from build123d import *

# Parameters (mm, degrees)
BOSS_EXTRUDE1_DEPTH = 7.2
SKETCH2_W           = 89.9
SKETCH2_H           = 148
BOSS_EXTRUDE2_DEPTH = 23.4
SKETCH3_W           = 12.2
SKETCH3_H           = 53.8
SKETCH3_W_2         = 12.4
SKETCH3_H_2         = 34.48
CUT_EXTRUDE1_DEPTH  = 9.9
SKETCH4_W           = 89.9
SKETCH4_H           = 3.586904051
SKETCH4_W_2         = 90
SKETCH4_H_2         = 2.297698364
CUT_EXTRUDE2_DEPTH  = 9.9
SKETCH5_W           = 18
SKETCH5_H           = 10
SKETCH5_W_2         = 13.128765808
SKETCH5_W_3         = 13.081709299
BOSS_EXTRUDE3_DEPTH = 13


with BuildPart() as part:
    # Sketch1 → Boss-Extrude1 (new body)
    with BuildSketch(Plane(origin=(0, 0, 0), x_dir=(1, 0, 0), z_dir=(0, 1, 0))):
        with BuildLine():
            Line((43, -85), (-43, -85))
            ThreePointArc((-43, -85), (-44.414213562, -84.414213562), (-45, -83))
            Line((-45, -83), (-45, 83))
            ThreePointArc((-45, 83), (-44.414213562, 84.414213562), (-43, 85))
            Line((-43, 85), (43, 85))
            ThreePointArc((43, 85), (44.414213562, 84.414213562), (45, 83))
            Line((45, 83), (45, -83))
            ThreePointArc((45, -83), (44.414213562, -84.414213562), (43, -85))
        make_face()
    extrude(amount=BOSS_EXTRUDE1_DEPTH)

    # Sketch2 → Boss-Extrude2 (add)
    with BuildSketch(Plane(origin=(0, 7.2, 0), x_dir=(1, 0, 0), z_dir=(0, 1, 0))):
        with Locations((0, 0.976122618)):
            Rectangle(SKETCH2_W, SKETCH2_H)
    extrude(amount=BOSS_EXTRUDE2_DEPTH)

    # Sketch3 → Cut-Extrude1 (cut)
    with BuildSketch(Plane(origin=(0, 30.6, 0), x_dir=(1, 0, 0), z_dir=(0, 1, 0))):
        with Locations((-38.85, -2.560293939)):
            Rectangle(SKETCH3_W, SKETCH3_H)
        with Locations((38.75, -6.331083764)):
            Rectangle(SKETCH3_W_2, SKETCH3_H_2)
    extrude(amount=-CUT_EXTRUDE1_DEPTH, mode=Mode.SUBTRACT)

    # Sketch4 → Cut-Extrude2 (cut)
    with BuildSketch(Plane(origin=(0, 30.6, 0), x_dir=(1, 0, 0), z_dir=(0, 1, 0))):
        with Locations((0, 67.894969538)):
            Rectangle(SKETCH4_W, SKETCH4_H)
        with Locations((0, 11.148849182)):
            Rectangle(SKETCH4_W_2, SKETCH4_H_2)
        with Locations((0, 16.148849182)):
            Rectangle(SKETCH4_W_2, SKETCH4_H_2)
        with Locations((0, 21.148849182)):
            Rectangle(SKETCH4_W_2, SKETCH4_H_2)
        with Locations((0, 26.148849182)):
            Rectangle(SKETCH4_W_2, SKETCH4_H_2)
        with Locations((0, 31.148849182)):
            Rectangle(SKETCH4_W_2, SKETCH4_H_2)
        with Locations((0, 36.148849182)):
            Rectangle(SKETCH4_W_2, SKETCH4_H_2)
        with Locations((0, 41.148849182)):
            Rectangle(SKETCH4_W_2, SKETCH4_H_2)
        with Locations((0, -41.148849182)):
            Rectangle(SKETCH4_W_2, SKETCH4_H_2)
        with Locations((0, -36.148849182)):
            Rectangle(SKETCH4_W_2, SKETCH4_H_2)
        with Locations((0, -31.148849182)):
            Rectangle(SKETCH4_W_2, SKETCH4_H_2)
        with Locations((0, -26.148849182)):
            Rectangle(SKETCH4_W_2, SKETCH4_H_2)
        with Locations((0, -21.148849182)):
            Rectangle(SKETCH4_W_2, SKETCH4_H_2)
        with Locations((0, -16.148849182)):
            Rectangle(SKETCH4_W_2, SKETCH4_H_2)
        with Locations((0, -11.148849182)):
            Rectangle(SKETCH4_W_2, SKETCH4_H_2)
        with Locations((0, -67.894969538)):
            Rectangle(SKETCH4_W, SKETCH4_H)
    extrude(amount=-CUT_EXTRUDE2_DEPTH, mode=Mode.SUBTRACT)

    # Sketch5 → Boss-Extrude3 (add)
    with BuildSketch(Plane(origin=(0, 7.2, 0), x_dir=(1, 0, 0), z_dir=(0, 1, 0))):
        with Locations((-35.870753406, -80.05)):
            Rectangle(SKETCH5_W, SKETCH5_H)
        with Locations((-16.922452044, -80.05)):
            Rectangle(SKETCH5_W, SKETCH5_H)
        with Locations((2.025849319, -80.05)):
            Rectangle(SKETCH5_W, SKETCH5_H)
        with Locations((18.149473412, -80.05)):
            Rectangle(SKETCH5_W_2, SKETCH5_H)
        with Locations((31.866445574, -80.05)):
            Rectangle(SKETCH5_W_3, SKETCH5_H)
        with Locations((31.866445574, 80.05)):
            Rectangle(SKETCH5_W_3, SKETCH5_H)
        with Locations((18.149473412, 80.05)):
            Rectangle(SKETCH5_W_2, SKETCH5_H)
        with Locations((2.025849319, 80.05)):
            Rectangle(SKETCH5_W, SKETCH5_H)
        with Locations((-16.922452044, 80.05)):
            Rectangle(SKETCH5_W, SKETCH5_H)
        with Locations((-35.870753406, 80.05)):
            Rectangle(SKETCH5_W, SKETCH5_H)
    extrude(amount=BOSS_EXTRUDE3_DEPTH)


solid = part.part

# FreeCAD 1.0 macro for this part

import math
import FreeCAD as App
import Part
import Sketcher
from FreeCAD import Vector


def add_polygon(sketch, points):
    """Adds a closed chain of lines whose ends are joined by coincident constraints."""
    first, n = sketch.GeometryCount, len(points)
    for a, b in zip(points, points[1:] + points[:1]):
        sketch.addGeometry(Part.LineSegment(App.Vector(*a, 0), App.Vector(*b, 0)), False)
    for i in range(n):
        sketch.addConstraint(Sketcher.Constraint("Coincident", first + i, 2, first + (i + 1) % n, 1))

doc = App.newDocument("Part")
params = doc.addObject("Spreadsheet::Sheet", "Params")
for row, (alias, value) in enumerate([
    ("sketch1_radius", "2 mm"),
    ("sketch1_width", "86 mm"),
    ("sketch1_height", "166 mm"),
    ("pad1_length", "7.2 mm"),
    ("sketch2_height", "148 mm"),
    ("sketch2_width", "89.9 mm"),
    ("pad2_length", "23.4 mm"),
    ("sketch3_width", "12.2 mm"),
    ("sketch3_width2", "12.4 mm"),
    ("sketch3_height", "53.8 mm"),
    ("sketch3_height2", "34.48 mm"),
    ("pocket1_length", "9.9 mm"),
    ("sketch4_width", "90 mm"),
    ("sketch4_width2", "89.9 mm"),
    ("pocket2_length", "9.9 mm"),
    ("sketch5_width", "18 mm"),
    ("sketch5_height", "10 mm"),
    ("pad3_length", "13 mm"),
], start=1):
    params.set(f"A{row}", alias)
    params.set(f"B{row}", "=" + value)
    params.setAlias(f"B{row}", alias)

body = doc.addObject("PartDesign::Body", "Body")

# Sketch on XZ plane
sketch1 = doc.addObject("Sketcher::SketchObject", "Sketch")
body.addObject(sketch1)
sketch1.AttachmentSupport = (doc.XZ_Plane, [""])
sketch1.MapMode = "FlatFace"
sketch1.addGeometry(Part.LineSegment(Vector(-43, 85, 0), Vector(43, 85, 0)), False)
sketch1.addGeometry(Part.ArcOfCircle(Part.Circle(Vector(43, 83, 0), Vector(0, 0, 1), 2), math.radians(0), math.radians(90)), False)
sketch1.addGeometry(Part.LineSegment(Vector(45, 83, 0), Vector(45, -83, 0)), False)
sketch1.addGeometry(Part.ArcOfCircle(Part.Circle(Vector(43, -83, 0), Vector(0, 0, 1), 2), math.radians(-90), math.radians(0)), False)
sketch1.addGeometry(Part.LineSegment(Vector(43, -85, 0), Vector(-43, -85, 0)), False)
sketch1.addGeometry(Part.ArcOfCircle(Part.Circle(Vector(-43, -83, 0), Vector(0, 0, 1), 2), math.radians(-180), math.radians(-90)), False)
sketch1.addGeometry(Part.LineSegment(Vector(-45, -83, 0), Vector(-45, 83, 0)), False)
sketch1.addGeometry(Part.ArcOfCircle(Part.Circle(Vector(-43, 83, 0), Vector(0, 0, 1), 2), math.radians(90), math.radians(180)), False)
sketch1.addConstraint(Sketcher.Constraint("Tangent", 0, 2, 1, 2))
sketch1.addConstraint(Sketcher.Constraint("Tangent", 1, 1, 2, 1))
sketch1.addConstraint(Sketcher.Constraint("Tangent", 2, 2, 3, 2))
sketch1.addConstraint(Sketcher.Constraint("Tangent", 3, 1, 4, 1))
sketch1.addConstraint(Sketcher.Constraint("Tangent", 4, 2, 5, 2))
sketch1.addConstraint(Sketcher.Constraint("Tangent", 5, 1, 6, 1))
sketch1.addConstraint(Sketcher.Constraint("Tangent", 6, 2, 7, 2))
sketch1.addConstraint(Sketcher.Constraint("Tangent", 7, 1, 0, 1))
sketch1.addConstraint(Sketcher.Constraint("Horizontal", 0))
sketch1.addConstraint(Sketcher.Constraint("Vertical", 2))
sketch1.addConstraint(Sketcher.Constraint("Horizontal", 4))
sketch1.addConstraint(Sketcher.Constraint("Vertical", 6))
sketch1.addConstraint(Sketcher.Constraint("Equal", 1, 3))
sketch1.addConstraint(Sketcher.Constraint("Equal", 3, 5))
sketch1.addConstraint(Sketcher.Constraint("Equal", 5, 7))
sketch1.addConstraint(Sketcher.Constraint("Symmetric", 1, 3, 5, 3, -1, 1))
sketch1.addConstraint(Sketcher.Constraint("Radius", 1, 2.0))
sketch1.addConstraint(Sketcher.Constraint("DistanceX", 0, 1, 0, 2, 86.0))
sketch1.addConstraint(Sketcher.Constraint("DistanceY", 2, 2, 2, 1, 166.0))
sketch1.setExpression("Constraints[16]", "Params.sketch1_radius")
sketch1.setExpression("Constraints[17]", "Params.sketch1_width")
sketch1.setExpression("Constraints[18]", "Params.sketch1_height")
pad1 = doc.addObject("PartDesign::Pad", "Pad")
body.addObject(pad1)
pad1.Profile = sketch1
pad1.setExpression("Length", "Params.pad1_length")
pad1.Reversed = True

# Sketch on XZ plane
sketch2 = doc.addObject("Sketcher::SketchObject", "Sketch001")
body.addObject(sketch2)
sketch2.AttachmentSupport = (doc.XZ_Plane, [""])
sketch2.MapMode = "FlatFace"
sketch2.AttachmentOffset = App.Placement(Vector(0, 0, -7.2), App.Rotation())
add_polygon(sketch2, [(-44.95, -74.976123), (-44.95, 73.023877), (44.95, 73.023877), (44.95, -74.976123)])  # lines 0-3
sketch2.addConstraint(Sketcher.Constraint("Vertical", 0))
sketch2.addConstraint(Sketcher.Constraint("Horizontal", 1))
sketch2.addConstraint(Sketcher.Constraint("Vertical", 2))
sketch2.addConstraint(Sketcher.Constraint("Horizontal", 3))
sketch2.addConstraint(Sketcher.Constraint("DistanceY", 0, 1, 0, 2, 148.0))
sketch2.addConstraint(Sketcher.Constraint("DistanceX", 1, 1, 1, 2, 89.9))
sketch2.addConstraint(Sketcher.Constraint("DistanceX", 0, 2, -1, 1, 44.95))
sketch2.addConstraint(Sketcher.Constraint("DistanceY", -1, 1, 0, 2, 73.023877))
sketch2.setExpression("Constraints[8]", "Params.sketch2_height")
sketch2.setExpression("Constraints[9]", "Params.sketch2_width")
pad2 = doc.addObject("PartDesign::Pad", "Pad001")
body.addObject(pad2)
pad2.Profile = sketch2
pad2.setExpression("Length", "Params.pad2_length")
pad2.Reversed = True

# Sketch on XZ plane
sketch3 = doc.addObject("Sketcher::SketchObject", "Sketch002")
body.addObject(sketch3)
sketch3.AttachmentSupport = (doc.XZ_Plane, [""])
sketch3.MapMode = "FlatFace"
sketch3.AttachmentOffset = App.Placement(Vector(0, 0, -30.6), App.Rotation())
add_polygon(sketch3, [(-44.95, -24.339706), (-44.95, 29.460294), (-32.75, 29.460294), (-32.75, -24.339706)])  # lines 0-3
add_polygon(sketch3, [(32.55, -10.908916), (32.55, 23.571084), (44.95, 23.571084), (44.95, -10.908916)])  # lines 4-7
sketch3.addConstraint(Sketcher.Constraint("Vertical", 0))
sketch3.addConstraint(Sketcher.Constraint("Horizontal", 1))
sketch3.addConstraint(Sketcher.Constraint("Vertical", 2))
sketch3.addConstraint(Sketcher.Constraint("Horizontal", 3))
sketch3.addConstraint(Sketcher.Constraint("Vertical", 4))
sketch3.addConstraint(Sketcher.Constraint("Horizontal", 5))
sketch3.addConstraint(Sketcher.Constraint("Vertical", 6))
sketch3.addConstraint(Sketcher.Constraint("Horizontal", 7))
sketch3.addConstraint(Sketcher.Constraint("DistanceX", 1, 1, 1, 2, 12.2))
sketch3.addConstraint(Sketcher.Constraint("DistanceX", 5, 1, 5, 2, 12.4))
sketch3.addConstraint(Sketcher.Constraint("DistanceY", 0, 1, 0, 2, 53.8))
sketch3.addConstraint(Sketcher.Constraint("DistanceY", 4, 1, 4, 2, 34.48))
sketch3.addConstraint(Sketcher.Constraint("DistanceX", 1, 2, 4, 2, 65.3))
sketch3.addConstraint(Sketcher.Constraint("DistanceX", 0, 2, -1, 1, 44.95))
sketch3.addConstraint(Sketcher.Constraint("DistanceY", 4, 2, 1, 2, 5.88921))
sketch3.addConstraint(Sketcher.Constraint("DistanceY", -1, 1, 0, 2, 29.460294))
sketch3.setExpression("Constraints[16]", "Params.sketch3_width")
sketch3.setExpression("Constraints[17]", "Params.sketch3_width2")
sketch3.setExpression("Constraints[18]", "Params.sketch3_height")
sketch3.setExpression("Constraints[19]", "Params.sketch3_height2")
pocket1 = doc.addObject("PartDesign::Pocket", "Pocket")
body.addObject(pocket1)
pocket1.Profile = sketch3
pocket1.setExpression("Length", "Params.pocket1_length")
pocket1.Reversed = True

# Sketch on XZ plane
sketch4 = doc.addObject("Sketcher::SketchObject", "Sketch003")
body.addObject(sketch4)
sketch4.AttachmentSupport = (doc.XZ_Plane, [""])
sketch4.MapMode = "FlatFace"
sketch4.AttachmentOffset = App.Placement(Vector(0, 0, -30.6), App.Rotation())
add_polygon(sketch4, [(-44.95, -69.688422), (-44.95, -66.101518), (44.95, -66.101518), (44.95, -69.688422)])  # lines 0-3
add_polygon(sketch4, [(-45, -12.297698), (-45, -10), (45, -10), (45, -12.297698)])  # lines 4-7
add_polygon(sketch4, [(-45, -17.297698), (-45, -15), (45, -15), (45, -17.297698)])  # lines 8-11
add_polygon(sketch4, [(-45, -22.297698), (-45, -20), (45, -20), (45, -22.297698)])  # lines 12-15
add_polygon(sketch4, [(-45, -27.297698), (-45, -25), (45, -25), (45, -27.297698)])  # lines 16-19
add_polygon(sketch4, [(-45, -32.297698), (-45, -30), (45, -30), (45, -32.297698)])  # lines 20-23
add_polygon(sketch4, [(-45, -37.297698), (-45, -35), (45, -35), (45, -37.297698)])  # lines 24-27
add_polygon(sketch4, [(-45, -42.297698), (-45, -40), (45, -40), (45, -42.297698)])  # lines 28-31
add_polygon(sketch4, [(-45, 40), (-45, 42.297698), (45, 42.297698), (45, 40)])  # lines 32-35
add_polygon(sketch4, [(-45, 35), (-45, 37.297698), (45, 37.297698), (45, 35)])  # lines 36-39
add_polygon(sketch4, [(-45, 30), (-45, 32.297698), (45, 32.297698), (45, 30)])  # lines 40-43
add_polygon(sketch4, [(-45, 25), (-45, 27.297698), (45, 27.297698), (45, 25)])  # lines 44-47
add_polygon(sketch4, [(-45, 20), (-45, 22.297698), (45, 22.297698), (45, 20)])  # lines 48-51
add_polygon(sketch4, [(-45, 15), (-45, 17.297698), (45, 17.297698), (45, 15)])  # lines 52-55
add_polygon(sketch4, [(-45, 10), (-45, 12.297698), (45, 12.297698), (45, 10)])  # lines 56-59
add_polygon(sketch4, [(-44.95, 66.101518), (-44.95, 69.688422), (44.95, 69.688422), (44.95, 66.101518)])  # lines 60-63
sketch4.addConstraint(Sketcher.Constraint("Vertical", 0))
sketch4.addConstraint(Sketcher.Constraint("Horizontal", 1))
sketch4.addConstraint(Sketcher.Constraint("Vertical", 2))
sketch4.addConstraint(Sketcher.Constraint("Horizontal", 3))
sketch4.addConstraint(Sketcher.Constraint("Vertical", 4))
sketch4.addConstraint(Sketcher.Constraint("Horizontal", 5))
sketch4.addConstraint(Sketcher.Constraint("Vertical", 6))
sketch4.addConstraint(Sketcher.Constraint("Horizontal", 7))
sketch4.addConstraint(Sketcher.Constraint("Vertical", 8))
sketch4.addConstraint(Sketcher.Constraint("Horizontal", 9))
sketch4.addConstraint(Sketcher.Constraint("Vertical", 10))
sketch4.addConstraint(Sketcher.Constraint("Horizontal", 11))
sketch4.addConstraint(Sketcher.Constraint("Vertical", 12))
sketch4.addConstraint(Sketcher.Constraint("Horizontal", 13))
sketch4.addConstraint(Sketcher.Constraint("Vertical", 14))
sketch4.addConstraint(Sketcher.Constraint("Horizontal", 15))
sketch4.addConstraint(Sketcher.Constraint("Vertical", 16))
sketch4.addConstraint(Sketcher.Constraint("Horizontal", 17))
sketch4.addConstraint(Sketcher.Constraint("Vertical", 18))
sketch4.addConstraint(Sketcher.Constraint("Horizontal", 19))
sketch4.addConstraint(Sketcher.Constraint("Vertical", 20))
sketch4.addConstraint(Sketcher.Constraint("Horizontal", 21))
sketch4.addConstraint(Sketcher.Constraint("Vertical", 22))
sketch4.addConstraint(Sketcher.Constraint("Horizontal", 23))
sketch4.addConstraint(Sketcher.Constraint("Vertical", 24))
sketch4.addConstraint(Sketcher.Constraint("Horizontal", 25))
sketch4.addConstraint(Sketcher.Constraint("Vertical", 26))
sketch4.addConstraint(Sketcher.Constraint("Horizontal", 27))
sketch4.addConstraint(Sketcher.Constraint("Vertical", 28))
sketch4.addConstraint(Sketcher.Constraint("Horizontal", 29))
sketch4.addConstraint(Sketcher.Constraint("Vertical", 30))
sketch4.addConstraint(Sketcher.Constraint("Horizontal", 31))
sketch4.addConstraint(Sketcher.Constraint("Vertical", 32))
sketch4.addConstraint(Sketcher.Constraint("Horizontal", 33))
sketch4.addConstraint(Sketcher.Constraint("Vertical", 34))
sketch4.addConstraint(Sketcher.Constraint("Horizontal", 35))
sketch4.addConstraint(Sketcher.Constraint("Vertical", 36))
sketch4.addConstraint(Sketcher.Constraint("Horizontal", 37))
sketch4.addConstraint(Sketcher.Constraint("Vertical", 38))
sketch4.addConstraint(Sketcher.Constraint("Horizontal", 39))
sketch4.addConstraint(Sketcher.Constraint("Vertical", 40))
sketch4.addConstraint(Sketcher.Constraint("Horizontal", 41))
sketch4.addConstraint(Sketcher.Constraint("Vertical", 42))
sketch4.addConstraint(Sketcher.Constraint("Horizontal", 43))
sketch4.addConstraint(Sketcher.Constraint("Vertical", 44))
sketch4.addConstraint(Sketcher.Constraint("Horizontal", 45))
sketch4.addConstraint(Sketcher.Constraint("Vertical", 46))
sketch4.addConstraint(Sketcher.Constraint("Horizontal", 47))
sketch4.addConstraint(Sketcher.Constraint("Vertical", 48))
sketch4.addConstraint(Sketcher.Constraint("Horizontal", 49))
sketch4.addConstraint(Sketcher.Constraint("Vertical", 50))
sketch4.addConstraint(Sketcher.Constraint("Horizontal", 51))
sketch4.addConstraint(Sketcher.Constraint("Vertical", 52))
sketch4.addConstraint(Sketcher.Constraint("Horizontal", 53))
sketch4.addConstraint(Sketcher.Constraint("Vertical", 54))
sketch4.addConstraint(Sketcher.Constraint("Horizontal", 55))
sketch4.addConstraint(Sketcher.Constraint("Vertical", 56))
sketch4.addConstraint(Sketcher.Constraint("Horizontal", 57))
sketch4.addConstraint(Sketcher.Constraint("Vertical", 58))
sketch4.addConstraint(Sketcher.Constraint("Horizontal", 59))
sketch4.addConstraint(Sketcher.Constraint("Vertical", 60))
sketch4.addConstraint(Sketcher.Constraint("Horizontal", 61))
sketch4.addConstraint(Sketcher.Constraint("Vertical", 62))
sketch4.addConstraint(Sketcher.Constraint("Horizontal", 63))
sketch4.addConstraint(Sketcher.Constraint("Symmetric", 30, 2, 32, 2, -1, 1))
sketch4.addConstraint(Sketcher.Constraint("Symmetric", 28, 2, 34, 2, -1, 1))
sketch4.addConstraint(Sketcher.Constraint("Symmetric", 26, 2, 36, 2, -1, 1))
sketch4.addConstraint(Sketcher.Constraint("Symmetric", 24, 2, 38, 2, -1, 1))
sketch4.addConstraint(Sketcher.Constraint("Symmetric", 22, 2, 40, 2, -1, 1))
sketch4.addConstraint(Sketcher.Constraint("Symmetric", 20, 2, 42, 2, -1, 1))
sketch4.addConstraint(Sketcher.Constraint("Symmetric", 18, 2, 44, 2, -1, 1))
sketch4.addConstraint(Sketcher.Constraint("Symmetric", 16, 2, 46, 2, -1, 1))
sketch4.addConstraint(Sketcher.Constraint("Symmetric", 14, 2, 48, 2, -1, 1))
sketch4.addConstraint(Sketcher.Constraint("Symmetric", 12, 2, 50, 2, -1, 1))
sketch4.addConstraint(Sketcher.Constraint("Symmetric", 10, 2, 52, 2, -1, 1))
sketch4.addConstraint(Sketcher.Constraint("Symmetric", 8, 2, 54, 2, -1, 1))
sketch4.addConstraint(Sketcher.Constraint("Symmetric", 6, 2, 56, 2, -1, 1))
sketch4.addConstraint(Sketcher.Constraint("Symmetric", 4, 2, 58, 2, -1, 1))
sketch4.addConstraint(Sketcher.Constraint("Symmetric", 2, 2, 60, 2, -1, 1))
sketch4.addConstraint(Sketcher.Constraint("Symmetric", 0, 2, 62, 2, -1, 1))
sketch4.addConstraint(Sketcher.Constraint("Vertical", 7, 2, 8, 2))
sketch4.addConstraint(Sketcher.Constraint("Vertical", 6, 2, 9, 2))
sketch4.addConstraint(Sketcher.Constraint("Vertical", 11, 2, 12, 2))
sketch4.addConstraint(Sketcher.Constraint("Vertical", 10, 2, 13, 2))
sketch4.addConstraint(Sketcher.Constraint("Vertical", 15, 2, 16, 2))
sketch4.addConstraint(Sketcher.Constraint("Vertical", 14, 2, 17, 2))
sketch4.addConstraint(Sketcher.Constraint("Vertical", 19, 2, 20, 2))
sketch4.addConstraint(Sketcher.Constraint("Vertical", 18, 2, 21, 2))
sketch4.addConstraint(Sketcher.Constraint("Vertical", 23, 2, 24, 2))
sketch4.addConstraint(Sketcher.Constraint("Vertical", 22, 2, 25, 2))
sketch4.addConstraint(Sketcher.Constraint("Vertical", 27, 2, 28, 2))
sketch4.addConstraint(Sketcher.Constraint("Vertical", 26, 2, 29, 2))
sketch4.addConstraint(Sketcher.Constraint("Vertical", 31, 2, 32, 2))
sketch4.addConstraint(Sketcher.Constraint("Vertical", 3, 2, 60, 2))
sketch4.addConstraint(Sketcher.Constraint("Equal", 6, 8))
sketch4.addConstraint(Sketcher.Constraint("Equal", 10, 12))
sketch4.addConstraint(Sketcher.Constraint("Equal", 14, 16))
sketch4.addConstraint(Sketcher.Constraint("Equal", 18, 20))
sketch4.addConstraint(Sketcher.Constraint("Equal", 22, 24))
sketch4.addConstraint(Sketcher.Constraint("Equal", 26, 28))
sketch4.addConstraint(Sketcher.Constraint("DistanceX", 5, 1, 5, 2, 90.0))
sketch4.addConstraint(Sketcher.Constraint("DistanceX", 1, 1, 1, 2, 89.9))
sketch4.addConstraint(Sketcher.Constraint("DistanceY", 4, 2, -1, 1, 10.0))
sketch4.addConstraint(Sketcher.Constraint("DistanceY", 8, 2, -1, 1, 15.0))
sketch4.addConstraint(Sketcher.Constraint("DistanceY", 12, 2, -1, 1, 20.0))
sketch4.addConstraint(Sketcher.Constraint("DistanceY", 16, 2, -1, 1, 25.0))
sketch4.addConstraint(Sketcher.Constraint("DistanceY", 20, 2, -1, 1, 30.0))
sketch4.addConstraint(Sketcher.Constraint("DistanceY", 24, 2, -1, 1, 35.0))
sketch4.addConstraint(Sketcher.Constraint("DistanceY", 28, 2, -1, 1, 40.0))
sketch4.addConstraint(Sketcher.Constraint("DistanceY", 4, 1, 4, 2, 2.297698))
sketch4.addConstraint(Sketcher.Constraint("DistanceY", 0, 1, 0, 2, 3.586904))
sketch4.addConstraint(Sketcher.Constraint("DistanceY", 2, 2, -1, 1, 69.688422))
sketch4.setExpression("Constraints[164]", "Params.sketch4_width")
sketch4.setExpression("Constraints[165]", "Params.sketch4_width2")
pocket2 = doc.addObject("PartDesign::Pocket", "Pocket001")
body.addObject(pocket2)
pocket2.Profile = sketch4
pocket2.setExpression("Length", "Params.pocket2_length")
pocket2.Reversed = True

# Sketch on XZ plane
sketch5 = doc.addObject("Sketcher::SketchObject", "Sketch004")
body.addObject(sketch5)
sketch5.AttachmentSupport = (doc.XZ_Plane, [""])
sketch5.MapMode = "FlatFace"
sketch5.AttachmentOffset = App.Placement(Vector(0, 0, -7.2), App.Rotation())
add_polygon(sketch5, [(-44.870753, 75.05), (-44.870753, 85.05), (-26.870753, 85.05), (-26.870753, 75.05)])  # lines 0-3
add_polygon(sketch5, [(-25.922452, 75.05), (-25.922452, 85.05), (-7.922452, 85.05), (-7.922452, 75.05)])  # lines 4-7
add_polygon(sketch5, [(-6.974151, 75.05), (-6.974151, 85.05), (11.025849, 85.05), (11.025849, 75.05)])  # lines 8-11
add_polygon(sketch5, [(11.585091, 75.05), (11.585091, 85.05), (24.713856, 85.05), (24.713856, 75.05)])  # lines 12-15
add_polygon(sketch5, [(25.325591, 75.05), (25.325591, 85.05), (38.4073, 85.05), (38.4073, 75.05)])  # lines 16-19
add_polygon(sketch5, [(25.325591, -85.05), (25.325591, -75.05), (38.4073, -75.05), (38.4073, -85.05)])  # lines 20-23
add_polygon(sketch5, [(11.585091, -85.05), (11.585091, -75.05), (24.713856, -75.05), (24.713856, -85.05)])  # lines 24-27
add_polygon(sketch5, [(-6.974151, -85.05), (-6.974151, -75.05), (11.025849, -75.05), (11.025849, -85.05)])  # lines 28-31
add_polygon(sketch5, [(-25.922452, -85.05), (-25.922452, -75.05), (-7.922452, -75.05), (-7.922452, -85.05)])  # lines 32-35
add_polygon(sketch5, [(-44.870753, -85.05), (-44.870753, -75.05), (-26.870753, -75.05), (-26.870753, -85.05)])  # lines 36-39
sketch5.addConstraint(Sketcher.Constraint("Vertical", 0))
sketch5.addConstraint(Sketcher.Constraint("Horizontal", 1))
sketch5.addConstraint(Sketcher.Constraint("Vertical", 2))
sketch5.addConstraint(Sketcher.Constraint("Horizontal", 3))
sketch5.addConstraint(Sketcher.Constraint("Vertical", 4))
sketch5.addConstraint(Sketcher.Constraint("Horizontal", 5))
sketch5.addConstraint(Sketcher.Constraint("Vertical", 6))
sketch5.addConstraint(Sketcher.Constraint("Horizontal", 7))
sketch5.addConstraint(Sketcher.Constraint("Vertical", 8))
sketch5.addConstraint(Sketcher.Constraint("Horizontal", 9))
sketch5.addConstraint(Sketcher.Constraint("Vertical", 10))
sketch5.addConstraint(Sketcher.Constraint("Horizontal", 11))
sketch5.addConstraint(Sketcher.Constraint("Vertical", 12))
sketch5.addConstraint(Sketcher.Constraint("Horizontal", 13))
sketch5.addConstraint(Sketcher.Constraint("Vertical", 14))
sketch5.addConstraint(Sketcher.Constraint("Horizontal", 15))
sketch5.addConstraint(Sketcher.Constraint("Vertical", 16))
sketch5.addConstraint(Sketcher.Constraint("Horizontal", 17))
sketch5.addConstraint(Sketcher.Constraint("Vertical", 18))
sketch5.addConstraint(Sketcher.Constraint("Horizontal", 19))
sketch5.addConstraint(Sketcher.Constraint("Vertical", 20))
sketch5.addConstraint(Sketcher.Constraint("Horizontal", 21))
sketch5.addConstraint(Sketcher.Constraint("Vertical", 22))
sketch5.addConstraint(Sketcher.Constraint("Horizontal", 23))
sketch5.addConstraint(Sketcher.Constraint("Vertical", 24))
sketch5.addConstraint(Sketcher.Constraint("Horizontal", 25))
sketch5.addConstraint(Sketcher.Constraint("Vertical", 26))
sketch5.addConstraint(Sketcher.Constraint("Horizontal", 27))
sketch5.addConstraint(Sketcher.Constraint("Vertical", 28))
sketch5.addConstraint(Sketcher.Constraint("Horizontal", 29))
sketch5.addConstraint(Sketcher.Constraint("Vertical", 30))
sketch5.addConstraint(Sketcher.Constraint("Horizontal", 31))
sketch5.addConstraint(Sketcher.Constraint("Vertical", 32))
sketch5.addConstraint(Sketcher.Constraint("Horizontal", 33))
sketch5.addConstraint(Sketcher.Constraint("Vertical", 34))
sketch5.addConstraint(Sketcher.Constraint("Horizontal", 35))
sketch5.addConstraint(Sketcher.Constraint("Vertical", 36))
sketch5.addConstraint(Sketcher.Constraint("Horizontal", 37))
sketch5.addConstraint(Sketcher.Constraint("Vertical", 38))
sketch5.addConstraint(Sketcher.Constraint("Horizontal", 39))
sketch5.addConstraint(Sketcher.Constraint("Symmetric", 19, 2, 20, 2, -1))
sketch5.addConstraint(Sketcher.Constraint("Symmetric", 17, 2, 22, 2, -1))
sketch5.addConstraint(Sketcher.Constraint("Symmetric", 15, 2, 24, 2, -1))
sketch5.addConstraint(Sketcher.Constraint("Symmetric", 13, 2, 26, 2, -1))
sketch5.addConstraint(Sketcher.Constraint("Symmetric", 11, 2, 28, 2, -1))
sketch5.addConstraint(Sketcher.Constraint("Symmetric", 9, 2, 30, 2, -1))
sketch5.addConstraint(Sketcher.Constraint("Symmetric", 7, 2, 32, 2, -1))
sketch5.addConstraint(Sketcher.Constraint("Symmetric", 5, 2, 34, 2, -1))
sketch5.addConstraint(Sketcher.Constraint("Symmetric", 3, 2, 36, 2, -1))
sketch5.addConstraint(Sketcher.Constraint("Symmetric", 1, 2, 38, 2, -1))
sketch5.addConstraint(Sketcher.Constraint("Horizontal", 1, 2, 4, 2))
sketch5.addConstraint(Sketcher.Constraint("Horizontal", 3, 2, 6, 2))
sketch5.addConstraint(Sketcher.Constraint("Horizontal", 5, 2, 8, 2))
sketch5.addConstraint(Sketcher.Constraint("Horizontal", 7, 2, 10, 2))
sketch5.addConstraint(Sketcher.Constraint("Horizontal", 9, 2, 12, 2))
sketch5.addConstraint(Sketcher.Constraint("Horizontal", 11, 2, 14, 2))
sketch5.addConstraint(Sketcher.Constraint("Horizontal", 13, 2, 16, 2))
sketch5.addConstraint(Sketcher.Constraint("Horizontal", 15, 2, 18, 2))
sketch5.addConstraint(Sketcher.Constraint("Equal", 3, 5))
sketch5.addConstraint(Sketcher.Constraint("Equal", 7, 9))
sketch5.addConstraint(Sketcher.Constraint("DistanceX", 1, 1, 1, 2, 18.0))
sketch5.addConstraint(Sketcher.Constraint("DistanceY", 0, 1, 0, 2, 10.0))
sketch5.addConstraint(Sketcher.Constraint("DistanceY", 20, 2, 19, 2, 150.1))
sketch5.addConstraint(Sketcher.Constraint("DistanceX", 17, 1, 17, 2, 13.081709))
sketch5.addConstraint(Sketcher.Constraint("DistanceX", -1, 1, 17, 2, 38.4073))
sketch5.addConstraint(Sketcher.Constraint("DistanceX", 1, 2, 4, 2, 0.948301))
sketch5.addConstraint(Sketcher.Constraint("DistanceX", 5, 2, 8, 2, 0.948301))
sketch5.addConstraint(Sketcher.Constraint("DistanceX", 12, 2, 16, 2, 13.7405))
sketch5.addConstraint(Sketcher.Constraint("DistanceX", 13, 1, 13, 2, 13.128766))
sketch5.addConstraint(Sketcher.Constraint("DistanceX", 8, 2, -1, 1, 6.974151))
sketch5.setExpression("Constraints[100]", "Params.sketch5_width")
sketch5.setExpression("Constraints[101]", "Params.sketch5_height")
pad3 = doc.addObject("PartDesign::Pad", "Pad002")
body.addObject(pad3)
pad3.Profile = sketch5
pad3.setExpression("Length", "Params.pad3_length")
pad3.Reversed = True

doc.recompute()
